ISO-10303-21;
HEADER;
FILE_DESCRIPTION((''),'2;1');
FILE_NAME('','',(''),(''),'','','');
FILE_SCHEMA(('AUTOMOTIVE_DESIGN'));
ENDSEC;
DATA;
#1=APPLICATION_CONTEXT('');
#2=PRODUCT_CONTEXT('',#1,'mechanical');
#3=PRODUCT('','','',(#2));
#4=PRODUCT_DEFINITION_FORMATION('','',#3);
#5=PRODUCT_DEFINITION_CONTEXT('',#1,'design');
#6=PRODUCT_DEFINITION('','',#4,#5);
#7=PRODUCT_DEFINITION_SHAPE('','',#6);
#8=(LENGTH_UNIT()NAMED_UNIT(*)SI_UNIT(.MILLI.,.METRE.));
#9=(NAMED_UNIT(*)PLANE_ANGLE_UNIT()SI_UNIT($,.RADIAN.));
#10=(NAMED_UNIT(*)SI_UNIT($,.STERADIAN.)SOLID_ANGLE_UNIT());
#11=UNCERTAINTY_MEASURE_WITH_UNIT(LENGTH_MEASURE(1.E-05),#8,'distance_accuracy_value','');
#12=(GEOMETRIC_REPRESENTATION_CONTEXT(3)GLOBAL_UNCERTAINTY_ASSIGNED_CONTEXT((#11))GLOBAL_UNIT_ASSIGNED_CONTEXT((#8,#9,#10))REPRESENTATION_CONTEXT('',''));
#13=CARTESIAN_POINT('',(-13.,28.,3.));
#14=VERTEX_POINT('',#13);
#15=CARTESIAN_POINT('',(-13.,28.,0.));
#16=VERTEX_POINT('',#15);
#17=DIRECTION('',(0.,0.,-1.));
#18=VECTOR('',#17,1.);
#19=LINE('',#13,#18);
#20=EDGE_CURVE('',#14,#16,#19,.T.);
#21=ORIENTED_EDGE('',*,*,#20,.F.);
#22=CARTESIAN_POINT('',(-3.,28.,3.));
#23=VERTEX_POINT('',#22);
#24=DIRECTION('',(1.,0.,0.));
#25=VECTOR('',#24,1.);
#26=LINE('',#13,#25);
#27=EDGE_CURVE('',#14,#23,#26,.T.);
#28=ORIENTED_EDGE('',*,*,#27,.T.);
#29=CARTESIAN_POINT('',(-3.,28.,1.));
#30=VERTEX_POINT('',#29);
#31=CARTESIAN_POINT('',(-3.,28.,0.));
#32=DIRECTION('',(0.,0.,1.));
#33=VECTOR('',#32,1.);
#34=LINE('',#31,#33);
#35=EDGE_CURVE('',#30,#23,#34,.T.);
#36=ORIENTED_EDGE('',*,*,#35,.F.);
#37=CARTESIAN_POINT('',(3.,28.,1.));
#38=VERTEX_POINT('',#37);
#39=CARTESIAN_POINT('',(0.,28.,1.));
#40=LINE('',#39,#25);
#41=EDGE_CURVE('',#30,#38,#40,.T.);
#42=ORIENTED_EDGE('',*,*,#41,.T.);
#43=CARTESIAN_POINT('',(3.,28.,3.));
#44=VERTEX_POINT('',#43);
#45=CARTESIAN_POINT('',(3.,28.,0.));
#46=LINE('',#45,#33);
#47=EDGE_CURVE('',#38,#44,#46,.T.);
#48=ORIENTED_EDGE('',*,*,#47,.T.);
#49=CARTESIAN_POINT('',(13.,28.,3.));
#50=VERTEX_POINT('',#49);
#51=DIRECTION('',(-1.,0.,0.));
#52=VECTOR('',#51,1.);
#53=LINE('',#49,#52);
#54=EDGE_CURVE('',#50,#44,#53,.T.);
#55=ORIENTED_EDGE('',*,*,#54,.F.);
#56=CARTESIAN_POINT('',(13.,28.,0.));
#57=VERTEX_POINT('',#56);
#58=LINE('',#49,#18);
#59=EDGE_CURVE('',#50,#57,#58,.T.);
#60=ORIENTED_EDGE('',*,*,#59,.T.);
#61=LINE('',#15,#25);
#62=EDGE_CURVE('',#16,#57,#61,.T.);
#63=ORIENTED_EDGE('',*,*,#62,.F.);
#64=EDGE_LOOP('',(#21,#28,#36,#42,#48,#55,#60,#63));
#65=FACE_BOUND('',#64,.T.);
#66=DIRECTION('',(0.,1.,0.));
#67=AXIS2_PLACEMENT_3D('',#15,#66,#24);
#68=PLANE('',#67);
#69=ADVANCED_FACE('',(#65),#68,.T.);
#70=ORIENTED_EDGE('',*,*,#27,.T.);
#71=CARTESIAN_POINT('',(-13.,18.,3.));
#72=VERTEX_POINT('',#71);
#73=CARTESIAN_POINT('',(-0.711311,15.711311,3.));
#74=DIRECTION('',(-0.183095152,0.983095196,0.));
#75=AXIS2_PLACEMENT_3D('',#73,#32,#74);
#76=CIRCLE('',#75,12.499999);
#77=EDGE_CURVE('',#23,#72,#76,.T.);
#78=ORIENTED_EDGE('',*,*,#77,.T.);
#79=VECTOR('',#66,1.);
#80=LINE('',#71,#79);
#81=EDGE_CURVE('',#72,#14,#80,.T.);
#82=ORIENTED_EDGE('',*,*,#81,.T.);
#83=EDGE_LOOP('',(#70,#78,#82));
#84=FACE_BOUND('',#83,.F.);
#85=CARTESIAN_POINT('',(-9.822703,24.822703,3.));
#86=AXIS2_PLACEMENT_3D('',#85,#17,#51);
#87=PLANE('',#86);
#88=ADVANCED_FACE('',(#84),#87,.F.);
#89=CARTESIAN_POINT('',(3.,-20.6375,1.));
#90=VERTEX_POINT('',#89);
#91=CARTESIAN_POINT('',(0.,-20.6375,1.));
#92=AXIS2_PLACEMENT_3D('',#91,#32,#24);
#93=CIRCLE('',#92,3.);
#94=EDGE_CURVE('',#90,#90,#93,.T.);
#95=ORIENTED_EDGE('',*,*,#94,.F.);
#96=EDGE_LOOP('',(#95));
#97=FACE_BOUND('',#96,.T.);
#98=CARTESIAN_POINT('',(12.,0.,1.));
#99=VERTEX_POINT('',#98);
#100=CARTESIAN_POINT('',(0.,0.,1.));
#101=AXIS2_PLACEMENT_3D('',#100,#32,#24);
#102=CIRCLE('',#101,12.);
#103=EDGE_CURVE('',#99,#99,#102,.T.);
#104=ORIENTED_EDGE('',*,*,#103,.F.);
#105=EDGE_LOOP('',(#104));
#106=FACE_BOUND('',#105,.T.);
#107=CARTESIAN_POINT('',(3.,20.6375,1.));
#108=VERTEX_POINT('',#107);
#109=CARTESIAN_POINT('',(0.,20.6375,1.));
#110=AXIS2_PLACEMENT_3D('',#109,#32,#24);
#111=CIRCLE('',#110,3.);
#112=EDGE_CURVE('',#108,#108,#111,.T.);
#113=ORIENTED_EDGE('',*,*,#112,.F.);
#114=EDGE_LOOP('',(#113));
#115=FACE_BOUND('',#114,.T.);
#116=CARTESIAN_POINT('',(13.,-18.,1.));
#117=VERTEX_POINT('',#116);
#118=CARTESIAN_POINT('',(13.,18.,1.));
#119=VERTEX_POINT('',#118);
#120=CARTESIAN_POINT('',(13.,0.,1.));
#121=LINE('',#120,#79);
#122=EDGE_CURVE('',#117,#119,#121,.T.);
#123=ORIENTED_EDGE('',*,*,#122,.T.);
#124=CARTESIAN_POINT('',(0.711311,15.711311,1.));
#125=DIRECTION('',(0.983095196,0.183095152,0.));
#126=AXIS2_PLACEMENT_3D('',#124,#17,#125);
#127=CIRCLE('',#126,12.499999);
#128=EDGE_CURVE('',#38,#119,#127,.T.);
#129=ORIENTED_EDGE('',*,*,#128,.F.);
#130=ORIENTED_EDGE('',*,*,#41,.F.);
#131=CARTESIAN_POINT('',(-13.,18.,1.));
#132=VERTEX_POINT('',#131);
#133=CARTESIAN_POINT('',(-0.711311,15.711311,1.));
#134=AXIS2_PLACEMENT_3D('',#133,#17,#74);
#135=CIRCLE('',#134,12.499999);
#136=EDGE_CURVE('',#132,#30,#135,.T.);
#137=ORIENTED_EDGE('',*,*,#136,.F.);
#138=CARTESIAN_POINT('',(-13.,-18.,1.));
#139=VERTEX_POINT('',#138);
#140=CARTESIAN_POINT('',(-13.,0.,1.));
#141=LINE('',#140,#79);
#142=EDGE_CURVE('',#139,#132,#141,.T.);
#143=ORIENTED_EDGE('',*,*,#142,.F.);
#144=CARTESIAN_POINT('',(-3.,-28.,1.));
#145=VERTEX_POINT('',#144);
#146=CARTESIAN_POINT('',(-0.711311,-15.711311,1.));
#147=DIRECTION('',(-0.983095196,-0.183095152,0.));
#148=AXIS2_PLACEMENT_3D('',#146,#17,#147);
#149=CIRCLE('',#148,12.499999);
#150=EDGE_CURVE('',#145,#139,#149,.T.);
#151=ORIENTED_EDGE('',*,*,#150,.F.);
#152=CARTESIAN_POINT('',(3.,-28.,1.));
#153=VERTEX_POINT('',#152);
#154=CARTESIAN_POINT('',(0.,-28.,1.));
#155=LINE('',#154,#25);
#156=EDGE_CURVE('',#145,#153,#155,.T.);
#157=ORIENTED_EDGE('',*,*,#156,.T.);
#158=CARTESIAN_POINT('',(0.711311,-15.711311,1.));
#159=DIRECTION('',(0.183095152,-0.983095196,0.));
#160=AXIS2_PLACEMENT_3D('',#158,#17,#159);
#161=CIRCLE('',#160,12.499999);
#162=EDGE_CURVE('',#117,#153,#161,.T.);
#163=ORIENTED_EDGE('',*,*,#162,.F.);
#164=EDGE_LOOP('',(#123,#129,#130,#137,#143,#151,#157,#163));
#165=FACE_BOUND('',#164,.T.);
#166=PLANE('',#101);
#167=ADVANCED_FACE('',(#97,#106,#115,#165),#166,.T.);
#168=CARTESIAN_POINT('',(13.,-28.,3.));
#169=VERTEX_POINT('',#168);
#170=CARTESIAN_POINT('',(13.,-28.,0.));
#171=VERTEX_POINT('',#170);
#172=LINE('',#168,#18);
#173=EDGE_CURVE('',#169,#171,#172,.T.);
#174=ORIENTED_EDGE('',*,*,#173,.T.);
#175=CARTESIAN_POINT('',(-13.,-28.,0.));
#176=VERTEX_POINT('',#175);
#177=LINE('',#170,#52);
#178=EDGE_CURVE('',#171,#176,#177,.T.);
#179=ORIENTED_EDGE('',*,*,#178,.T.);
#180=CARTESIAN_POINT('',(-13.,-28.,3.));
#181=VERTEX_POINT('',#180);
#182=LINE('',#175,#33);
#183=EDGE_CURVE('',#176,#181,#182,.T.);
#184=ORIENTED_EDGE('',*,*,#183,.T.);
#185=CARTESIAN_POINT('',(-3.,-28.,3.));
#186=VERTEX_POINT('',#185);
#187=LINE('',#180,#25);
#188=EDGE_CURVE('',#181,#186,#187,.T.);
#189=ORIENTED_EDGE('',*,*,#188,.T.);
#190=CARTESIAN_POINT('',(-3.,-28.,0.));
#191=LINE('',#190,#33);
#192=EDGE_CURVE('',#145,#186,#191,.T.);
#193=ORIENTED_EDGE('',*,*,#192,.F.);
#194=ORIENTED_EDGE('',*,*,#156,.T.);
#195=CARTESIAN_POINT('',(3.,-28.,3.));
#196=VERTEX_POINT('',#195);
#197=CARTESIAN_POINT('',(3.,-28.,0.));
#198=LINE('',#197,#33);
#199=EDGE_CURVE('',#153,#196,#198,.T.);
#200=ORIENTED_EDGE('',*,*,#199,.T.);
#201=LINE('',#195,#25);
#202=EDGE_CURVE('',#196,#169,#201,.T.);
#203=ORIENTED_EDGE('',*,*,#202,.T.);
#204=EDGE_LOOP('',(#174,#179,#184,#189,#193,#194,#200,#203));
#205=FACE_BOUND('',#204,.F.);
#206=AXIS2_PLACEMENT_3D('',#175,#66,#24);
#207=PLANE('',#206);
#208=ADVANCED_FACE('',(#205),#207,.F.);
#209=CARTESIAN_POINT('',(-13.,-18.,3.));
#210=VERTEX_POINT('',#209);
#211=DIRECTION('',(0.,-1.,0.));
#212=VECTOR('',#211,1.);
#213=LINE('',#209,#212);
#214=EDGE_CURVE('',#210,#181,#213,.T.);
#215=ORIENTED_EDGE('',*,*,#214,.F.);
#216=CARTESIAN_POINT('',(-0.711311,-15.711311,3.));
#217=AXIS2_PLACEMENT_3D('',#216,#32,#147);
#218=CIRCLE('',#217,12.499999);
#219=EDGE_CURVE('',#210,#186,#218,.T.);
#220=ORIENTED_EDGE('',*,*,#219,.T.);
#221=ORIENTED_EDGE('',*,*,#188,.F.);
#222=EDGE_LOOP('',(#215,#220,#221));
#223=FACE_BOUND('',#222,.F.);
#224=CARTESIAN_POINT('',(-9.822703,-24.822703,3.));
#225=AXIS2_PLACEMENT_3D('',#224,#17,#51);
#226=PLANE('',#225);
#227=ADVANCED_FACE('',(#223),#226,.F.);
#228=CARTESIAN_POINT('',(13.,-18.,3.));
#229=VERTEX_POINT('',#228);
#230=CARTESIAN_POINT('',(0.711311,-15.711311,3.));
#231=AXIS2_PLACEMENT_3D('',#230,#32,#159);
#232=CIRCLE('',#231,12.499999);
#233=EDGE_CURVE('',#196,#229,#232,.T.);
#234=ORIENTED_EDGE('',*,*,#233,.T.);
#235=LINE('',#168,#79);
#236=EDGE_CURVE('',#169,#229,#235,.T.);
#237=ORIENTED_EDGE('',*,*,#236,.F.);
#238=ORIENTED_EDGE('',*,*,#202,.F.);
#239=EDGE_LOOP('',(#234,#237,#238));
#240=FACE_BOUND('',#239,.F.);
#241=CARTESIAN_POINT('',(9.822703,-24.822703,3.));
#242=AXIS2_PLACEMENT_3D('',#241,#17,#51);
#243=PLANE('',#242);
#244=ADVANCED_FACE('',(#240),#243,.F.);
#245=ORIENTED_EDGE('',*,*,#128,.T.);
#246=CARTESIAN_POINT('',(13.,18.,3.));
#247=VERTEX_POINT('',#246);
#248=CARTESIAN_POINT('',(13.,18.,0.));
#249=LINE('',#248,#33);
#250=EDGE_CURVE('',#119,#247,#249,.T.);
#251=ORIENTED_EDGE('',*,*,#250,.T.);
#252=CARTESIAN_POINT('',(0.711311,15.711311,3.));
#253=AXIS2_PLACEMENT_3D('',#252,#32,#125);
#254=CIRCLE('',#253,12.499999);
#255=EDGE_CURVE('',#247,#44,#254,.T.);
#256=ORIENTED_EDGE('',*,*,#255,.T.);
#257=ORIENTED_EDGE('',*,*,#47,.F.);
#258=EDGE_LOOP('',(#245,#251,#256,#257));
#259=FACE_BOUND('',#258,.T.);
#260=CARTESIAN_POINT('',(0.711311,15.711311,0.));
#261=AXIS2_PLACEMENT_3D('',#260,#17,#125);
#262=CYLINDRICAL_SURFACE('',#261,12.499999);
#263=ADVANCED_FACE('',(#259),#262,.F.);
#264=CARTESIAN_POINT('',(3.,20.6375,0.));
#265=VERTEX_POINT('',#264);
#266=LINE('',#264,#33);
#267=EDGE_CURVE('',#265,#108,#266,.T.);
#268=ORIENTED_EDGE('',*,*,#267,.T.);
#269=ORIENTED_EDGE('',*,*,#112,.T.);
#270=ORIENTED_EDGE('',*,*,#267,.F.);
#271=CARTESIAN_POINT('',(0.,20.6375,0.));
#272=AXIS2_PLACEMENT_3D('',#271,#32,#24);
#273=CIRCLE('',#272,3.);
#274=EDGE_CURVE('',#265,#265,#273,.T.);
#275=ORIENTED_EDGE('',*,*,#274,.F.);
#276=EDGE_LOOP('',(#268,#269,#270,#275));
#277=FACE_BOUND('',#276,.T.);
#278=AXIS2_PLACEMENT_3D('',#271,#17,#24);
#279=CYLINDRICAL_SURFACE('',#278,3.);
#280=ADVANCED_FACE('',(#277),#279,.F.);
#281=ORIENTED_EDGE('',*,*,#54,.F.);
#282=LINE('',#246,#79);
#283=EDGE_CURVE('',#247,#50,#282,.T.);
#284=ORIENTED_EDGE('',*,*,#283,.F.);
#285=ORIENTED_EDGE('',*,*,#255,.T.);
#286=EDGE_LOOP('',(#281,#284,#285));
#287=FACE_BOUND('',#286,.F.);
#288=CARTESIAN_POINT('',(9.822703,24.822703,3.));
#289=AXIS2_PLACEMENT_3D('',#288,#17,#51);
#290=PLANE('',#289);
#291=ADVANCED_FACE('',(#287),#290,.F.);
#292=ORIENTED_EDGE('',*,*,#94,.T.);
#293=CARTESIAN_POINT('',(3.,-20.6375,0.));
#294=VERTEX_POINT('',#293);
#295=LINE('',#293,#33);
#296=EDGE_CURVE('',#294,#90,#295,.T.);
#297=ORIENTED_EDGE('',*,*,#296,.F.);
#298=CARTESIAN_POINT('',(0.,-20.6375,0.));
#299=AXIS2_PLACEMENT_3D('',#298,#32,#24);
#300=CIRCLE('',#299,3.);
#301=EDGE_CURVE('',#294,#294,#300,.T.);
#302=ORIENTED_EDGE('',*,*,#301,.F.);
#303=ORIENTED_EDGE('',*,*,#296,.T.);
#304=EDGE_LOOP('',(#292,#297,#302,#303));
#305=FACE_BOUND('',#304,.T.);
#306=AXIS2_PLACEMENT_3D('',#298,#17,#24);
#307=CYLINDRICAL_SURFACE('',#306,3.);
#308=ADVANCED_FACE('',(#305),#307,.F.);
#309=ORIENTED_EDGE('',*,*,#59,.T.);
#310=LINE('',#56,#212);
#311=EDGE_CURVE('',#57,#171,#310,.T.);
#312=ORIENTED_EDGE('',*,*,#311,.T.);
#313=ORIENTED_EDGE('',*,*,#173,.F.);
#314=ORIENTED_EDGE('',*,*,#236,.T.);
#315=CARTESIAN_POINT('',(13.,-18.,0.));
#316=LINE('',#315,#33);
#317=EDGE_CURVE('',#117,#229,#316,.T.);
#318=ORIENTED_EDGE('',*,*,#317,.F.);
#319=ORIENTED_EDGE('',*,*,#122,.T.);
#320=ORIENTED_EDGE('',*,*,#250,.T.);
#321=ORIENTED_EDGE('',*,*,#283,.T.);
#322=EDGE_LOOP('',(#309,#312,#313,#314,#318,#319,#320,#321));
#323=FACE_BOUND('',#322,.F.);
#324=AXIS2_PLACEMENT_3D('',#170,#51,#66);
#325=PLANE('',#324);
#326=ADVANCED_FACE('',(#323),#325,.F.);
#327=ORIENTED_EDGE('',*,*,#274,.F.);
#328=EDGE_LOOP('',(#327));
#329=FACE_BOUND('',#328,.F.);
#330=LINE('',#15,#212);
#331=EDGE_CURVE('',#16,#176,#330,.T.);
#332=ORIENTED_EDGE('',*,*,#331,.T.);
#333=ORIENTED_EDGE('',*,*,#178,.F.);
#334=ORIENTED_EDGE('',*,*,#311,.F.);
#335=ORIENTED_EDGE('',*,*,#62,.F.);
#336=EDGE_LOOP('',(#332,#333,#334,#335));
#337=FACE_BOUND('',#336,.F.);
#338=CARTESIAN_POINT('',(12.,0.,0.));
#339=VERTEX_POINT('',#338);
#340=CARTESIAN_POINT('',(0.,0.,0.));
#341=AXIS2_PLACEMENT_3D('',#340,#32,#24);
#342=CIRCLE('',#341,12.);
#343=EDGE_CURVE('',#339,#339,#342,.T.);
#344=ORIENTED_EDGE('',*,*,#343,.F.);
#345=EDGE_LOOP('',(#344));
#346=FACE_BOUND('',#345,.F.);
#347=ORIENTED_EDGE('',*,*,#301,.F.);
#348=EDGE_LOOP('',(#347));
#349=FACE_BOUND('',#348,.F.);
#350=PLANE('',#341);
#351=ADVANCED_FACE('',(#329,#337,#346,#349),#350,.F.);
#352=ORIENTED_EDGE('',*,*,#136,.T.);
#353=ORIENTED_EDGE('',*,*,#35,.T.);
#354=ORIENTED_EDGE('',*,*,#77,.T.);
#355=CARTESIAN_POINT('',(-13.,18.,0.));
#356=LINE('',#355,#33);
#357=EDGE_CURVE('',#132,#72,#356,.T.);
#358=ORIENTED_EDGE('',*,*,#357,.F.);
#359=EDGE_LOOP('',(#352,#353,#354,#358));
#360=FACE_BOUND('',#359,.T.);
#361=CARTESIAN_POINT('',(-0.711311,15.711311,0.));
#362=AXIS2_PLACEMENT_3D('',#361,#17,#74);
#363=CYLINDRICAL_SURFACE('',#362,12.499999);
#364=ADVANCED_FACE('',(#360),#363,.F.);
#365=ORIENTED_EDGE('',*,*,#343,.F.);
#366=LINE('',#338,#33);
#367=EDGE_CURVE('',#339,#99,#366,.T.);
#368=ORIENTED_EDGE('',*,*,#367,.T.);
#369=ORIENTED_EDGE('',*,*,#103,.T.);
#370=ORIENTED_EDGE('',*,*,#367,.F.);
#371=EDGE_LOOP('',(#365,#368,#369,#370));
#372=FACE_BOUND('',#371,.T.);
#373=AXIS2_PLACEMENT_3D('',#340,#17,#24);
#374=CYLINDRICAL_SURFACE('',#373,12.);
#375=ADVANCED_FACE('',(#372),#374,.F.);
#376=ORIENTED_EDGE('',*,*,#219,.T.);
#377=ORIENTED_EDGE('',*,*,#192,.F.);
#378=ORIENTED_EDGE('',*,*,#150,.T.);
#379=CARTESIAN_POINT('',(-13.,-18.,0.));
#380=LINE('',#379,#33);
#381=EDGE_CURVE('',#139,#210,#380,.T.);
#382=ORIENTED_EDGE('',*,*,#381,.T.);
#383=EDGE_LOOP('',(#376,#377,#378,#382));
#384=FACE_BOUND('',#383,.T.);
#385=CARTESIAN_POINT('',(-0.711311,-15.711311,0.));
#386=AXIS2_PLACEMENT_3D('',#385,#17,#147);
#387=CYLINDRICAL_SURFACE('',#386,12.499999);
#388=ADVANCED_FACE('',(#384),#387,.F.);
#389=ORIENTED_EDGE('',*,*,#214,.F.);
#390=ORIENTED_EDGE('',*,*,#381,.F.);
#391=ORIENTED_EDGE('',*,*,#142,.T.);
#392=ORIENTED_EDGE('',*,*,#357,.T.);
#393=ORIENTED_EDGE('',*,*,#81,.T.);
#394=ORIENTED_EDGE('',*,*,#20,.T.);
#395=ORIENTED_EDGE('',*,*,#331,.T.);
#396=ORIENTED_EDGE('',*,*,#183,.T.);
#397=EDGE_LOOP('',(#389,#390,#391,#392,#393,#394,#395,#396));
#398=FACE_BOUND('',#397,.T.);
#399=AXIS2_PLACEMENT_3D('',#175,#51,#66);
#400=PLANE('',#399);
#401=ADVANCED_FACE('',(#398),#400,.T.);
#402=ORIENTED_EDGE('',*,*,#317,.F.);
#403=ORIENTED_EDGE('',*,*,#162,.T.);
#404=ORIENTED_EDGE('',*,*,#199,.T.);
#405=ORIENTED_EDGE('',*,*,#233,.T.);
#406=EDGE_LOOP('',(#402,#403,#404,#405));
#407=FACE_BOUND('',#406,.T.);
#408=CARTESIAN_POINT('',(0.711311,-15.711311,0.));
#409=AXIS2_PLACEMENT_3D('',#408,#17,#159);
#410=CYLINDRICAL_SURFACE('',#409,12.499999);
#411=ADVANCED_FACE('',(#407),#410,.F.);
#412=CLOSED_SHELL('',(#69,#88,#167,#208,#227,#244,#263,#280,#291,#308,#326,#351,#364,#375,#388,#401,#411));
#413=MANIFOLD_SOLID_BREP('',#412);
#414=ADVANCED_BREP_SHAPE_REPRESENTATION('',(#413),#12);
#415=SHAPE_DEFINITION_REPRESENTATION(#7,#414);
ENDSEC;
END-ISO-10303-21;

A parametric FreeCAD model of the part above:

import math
import FreeCAD as App
import Part
import Sketcher

V = App.Vector


def add_polygon(sketch, points):
    """Adds a closed chain of lines whose ends are joined by coincident constraints."""
    first, n = sketch.GeometryCount, len(points)
    for a, b in zip(points, points[1:] + points[:1]):
        sketch.addGeometry(Part.LineSegment(App.Vector(*a, 0), App.Vector(*b, 0)), False)
    for i in range(n):
        sketch.addConstraint(Sketcher.Constraint("Coincident", first + i, 2, first + (i + 1) % n, 1))

doc = App.newDocument("Part")
body = doc.addObject("PartDesign::Body", "Body")

# Sketch on XY plane
sketch1 = body.newObject("Sketcher::SketchObject", "Sketch")
sketch1.AttachmentSupport = (doc.getObject("XY_Plane"), [""])
sketch1.MapMode = "FlatFace"
add_polygon(sketch1, [(-13, 28), (-13, -28), (13, -28), (13, 28)])  # lines 0-3
sketch1.addGeometry(Part.Circle(V(0, -20.6, 0), V(0, 0, 1), 3), False)  # 4
sketch1.addGeometry(Part.Circle(V(0, 0, 0), V(0, 0, 1), 12), False)  # 5
sketch1.addGeometry(Part.Circle(V(0, 20.6, 0), V(0, 0, 1), 3), False)  # 6
sketch1.addConstraint([
    Sketcher.Constraint("Vertical", 0),
    Sketcher.Constraint("Horizontal", 1),
    Sketcher.Constraint("Vertical", 2),
    Sketcher.Constraint("Horizontal", 3),
    Sketcher.Constraint("Coincident", 5, 3, -1, 1),
    Sketcher.Constraint("Equal", 4, 6),
    Sketcher.Constraint("Symmetric", 4, 3, 6, 3, -1, 1),
    Sketcher.Constraint("Symmetric", 0, 2, 2, 2, -1, 1),
    Sketcher.Constraint("PointOnObject", 4, 3, -2),
    Sketcher.Constraint("Diameter", 4, 6.0),
    Sketcher.Constraint("Diameter", 5, 24.0),
    Sketcher.Constraint("DistanceX", 1, 1, 1, 2, 26.0),
    Sketcher.Constraint("DistanceY", 0, 2, 0, 1, 56.0),
    Sketcher.Constraint("DistanceY", 4, 3, 6, 3, 41.275),
])
pad1 = body.newObject("PartDesign::Pad", "Pad")
pad1.Profile = sketch1
pad1.Length = 1

# Sketch on XY plane
sketch2 = body.newObject("Sketcher::SketchObject", "Sketch001")
sketch2.AttachmentSupport = (doc.getObject("XY_Plane"), [""])
sketch2.MapMode = "FlatFace"
sketch2.addGeometry([
    Part.ArcOfCircle(Part.Circle(V(-1, 16, 0), V(0, 0, 1), 12), math.radians(101), math.radians(169)),  # 0
    Part.LineSegment(V(-3, 28, 0), V(-13, 28, 0)),  # 1
    Part.LineSegment(V(-13, 28, 0), V(-13, 18, 0)),  # 2
    Part.ArcOfCircle(Part.Circle(V(1, 16, 0), V(0, 0, 1), 12), math.radians(11), math.radians(79)),  # 3
    Part.LineSegment(V(13, 18, 0), V(13, 28, 0)),  # 4
    Part.LineSegment(V(13, 28, 0), V(3, 28, 0)),  # 5
    Part.ArcOfCircle(Part.Circle(V(-1, -16, 0), V(0, 0, 1), 12), math.radians(-169), math.radians(-101)),  # 6
    Part.LineSegment(V(-13, -18, 0), V(-13, -28, 0)),  # 7
    Part.LineSegment(V(-13, -28, 0), V(-3, -28, 0)),  # 8
    Part.ArcOfCircle(Part.Circle(V(1, -16, 0), V(0, 0, 1), 12), math.radians(-79), math.radians(-11)),  # 9
    Part.LineSegment(V(3, -28, 0), V(13, -28, 0)),  # 10
    Part.LineSegment(V(13, -28, 0), V(13, -18, 0)),  # 11
], False)
sketch2.addConstraint([
    Sketcher.Constraint("Coincident", 0, 1, 1, 1),
    Sketcher.Constraint("Coincident", 1, 2, 2, 1),
    Sketcher.Constraint("Coincident", 2, 2, 0, 2),
    Sketcher.Constraint("Coincident", 3, 1, 4, 1),
    Sketcher.Constraint("Coincident", 4, 2, 5, 1),
    Sketcher.Constraint("Coincident", 5, 2, 3, 2),
    Sketcher.Constraint("Coincident", 6, 1, 7, 1),
    Sketcher.Constraint("Coincident", 7, 2, 8, 1),
    Sketcher.Constraint("Coincident", 8, 2, 6, 2),
    Sketcher.Constraint("Coincident", 9, 1, 10, 1),
    Sketcher.Constraint("Coincident", 10, 2, 11, 1),
    Sketcher.Constraint("Coincident", 11, 2, 9, 2),
    Sketcher.Constraint("Horizontal", 1),
    Sketcher.Constraint("Vertical", 2),
    Sketcher.Constraint("Vertical", 4),
    Sketcher.Constraint("Horizontal", 5),
    Sketcher.Constraint("Vertical", 7),
    Sketcher.Constraint("Horizontal", 8),
    Sketcher.Constraint("Horizontal", 10),
    Sketcher.Constraint("Vertical", 11),
    Sketcher.Constraint("Equal", 0, 3),
    Sketcher.Constraint("Equal", 3, 6),
    Sketcher.Constraint("Equal", 6, 9),
    Sketcher.Constraint("Symmetric", 3, 3, 6, 3, -1, 1),
    Sketcher.Constraint("Symmetric", 0, 3, 9, 3, -1, 1),
    Sketcher.Constraint("Symmetric", 4, 2, 7, 2, -1, 1),
    Sketcher.Constraint("Symmetric", 1, 2, 10, 2, -1, 1),
    Sketcher.Constraint("Symmetric", 0, 3, 3, 3, -2),
    Sketcher.Constraint("Symmetric", 1, 2, 4, 2, -2),
    Sketcher.Constraint("Equal", 10, 2),
    Sketcher.Constraint("Radius", 0, 12.499999),
    Sketcher.Constraint("DistanceX", 1, 2, 1, 1, 10.0),
    Sketcher.Constraint("DistanceX", 0, 1, -1, 1, 3.0),
    Sketcher.Constraint("DistanceY", -1, 1, 0, 1, 28.0),
])
pad2 = body.newObject("PartDesign::Pad", "Pad001")
pad2.Profile = sketch2
pad2.Length = 3

doc.recompute()
